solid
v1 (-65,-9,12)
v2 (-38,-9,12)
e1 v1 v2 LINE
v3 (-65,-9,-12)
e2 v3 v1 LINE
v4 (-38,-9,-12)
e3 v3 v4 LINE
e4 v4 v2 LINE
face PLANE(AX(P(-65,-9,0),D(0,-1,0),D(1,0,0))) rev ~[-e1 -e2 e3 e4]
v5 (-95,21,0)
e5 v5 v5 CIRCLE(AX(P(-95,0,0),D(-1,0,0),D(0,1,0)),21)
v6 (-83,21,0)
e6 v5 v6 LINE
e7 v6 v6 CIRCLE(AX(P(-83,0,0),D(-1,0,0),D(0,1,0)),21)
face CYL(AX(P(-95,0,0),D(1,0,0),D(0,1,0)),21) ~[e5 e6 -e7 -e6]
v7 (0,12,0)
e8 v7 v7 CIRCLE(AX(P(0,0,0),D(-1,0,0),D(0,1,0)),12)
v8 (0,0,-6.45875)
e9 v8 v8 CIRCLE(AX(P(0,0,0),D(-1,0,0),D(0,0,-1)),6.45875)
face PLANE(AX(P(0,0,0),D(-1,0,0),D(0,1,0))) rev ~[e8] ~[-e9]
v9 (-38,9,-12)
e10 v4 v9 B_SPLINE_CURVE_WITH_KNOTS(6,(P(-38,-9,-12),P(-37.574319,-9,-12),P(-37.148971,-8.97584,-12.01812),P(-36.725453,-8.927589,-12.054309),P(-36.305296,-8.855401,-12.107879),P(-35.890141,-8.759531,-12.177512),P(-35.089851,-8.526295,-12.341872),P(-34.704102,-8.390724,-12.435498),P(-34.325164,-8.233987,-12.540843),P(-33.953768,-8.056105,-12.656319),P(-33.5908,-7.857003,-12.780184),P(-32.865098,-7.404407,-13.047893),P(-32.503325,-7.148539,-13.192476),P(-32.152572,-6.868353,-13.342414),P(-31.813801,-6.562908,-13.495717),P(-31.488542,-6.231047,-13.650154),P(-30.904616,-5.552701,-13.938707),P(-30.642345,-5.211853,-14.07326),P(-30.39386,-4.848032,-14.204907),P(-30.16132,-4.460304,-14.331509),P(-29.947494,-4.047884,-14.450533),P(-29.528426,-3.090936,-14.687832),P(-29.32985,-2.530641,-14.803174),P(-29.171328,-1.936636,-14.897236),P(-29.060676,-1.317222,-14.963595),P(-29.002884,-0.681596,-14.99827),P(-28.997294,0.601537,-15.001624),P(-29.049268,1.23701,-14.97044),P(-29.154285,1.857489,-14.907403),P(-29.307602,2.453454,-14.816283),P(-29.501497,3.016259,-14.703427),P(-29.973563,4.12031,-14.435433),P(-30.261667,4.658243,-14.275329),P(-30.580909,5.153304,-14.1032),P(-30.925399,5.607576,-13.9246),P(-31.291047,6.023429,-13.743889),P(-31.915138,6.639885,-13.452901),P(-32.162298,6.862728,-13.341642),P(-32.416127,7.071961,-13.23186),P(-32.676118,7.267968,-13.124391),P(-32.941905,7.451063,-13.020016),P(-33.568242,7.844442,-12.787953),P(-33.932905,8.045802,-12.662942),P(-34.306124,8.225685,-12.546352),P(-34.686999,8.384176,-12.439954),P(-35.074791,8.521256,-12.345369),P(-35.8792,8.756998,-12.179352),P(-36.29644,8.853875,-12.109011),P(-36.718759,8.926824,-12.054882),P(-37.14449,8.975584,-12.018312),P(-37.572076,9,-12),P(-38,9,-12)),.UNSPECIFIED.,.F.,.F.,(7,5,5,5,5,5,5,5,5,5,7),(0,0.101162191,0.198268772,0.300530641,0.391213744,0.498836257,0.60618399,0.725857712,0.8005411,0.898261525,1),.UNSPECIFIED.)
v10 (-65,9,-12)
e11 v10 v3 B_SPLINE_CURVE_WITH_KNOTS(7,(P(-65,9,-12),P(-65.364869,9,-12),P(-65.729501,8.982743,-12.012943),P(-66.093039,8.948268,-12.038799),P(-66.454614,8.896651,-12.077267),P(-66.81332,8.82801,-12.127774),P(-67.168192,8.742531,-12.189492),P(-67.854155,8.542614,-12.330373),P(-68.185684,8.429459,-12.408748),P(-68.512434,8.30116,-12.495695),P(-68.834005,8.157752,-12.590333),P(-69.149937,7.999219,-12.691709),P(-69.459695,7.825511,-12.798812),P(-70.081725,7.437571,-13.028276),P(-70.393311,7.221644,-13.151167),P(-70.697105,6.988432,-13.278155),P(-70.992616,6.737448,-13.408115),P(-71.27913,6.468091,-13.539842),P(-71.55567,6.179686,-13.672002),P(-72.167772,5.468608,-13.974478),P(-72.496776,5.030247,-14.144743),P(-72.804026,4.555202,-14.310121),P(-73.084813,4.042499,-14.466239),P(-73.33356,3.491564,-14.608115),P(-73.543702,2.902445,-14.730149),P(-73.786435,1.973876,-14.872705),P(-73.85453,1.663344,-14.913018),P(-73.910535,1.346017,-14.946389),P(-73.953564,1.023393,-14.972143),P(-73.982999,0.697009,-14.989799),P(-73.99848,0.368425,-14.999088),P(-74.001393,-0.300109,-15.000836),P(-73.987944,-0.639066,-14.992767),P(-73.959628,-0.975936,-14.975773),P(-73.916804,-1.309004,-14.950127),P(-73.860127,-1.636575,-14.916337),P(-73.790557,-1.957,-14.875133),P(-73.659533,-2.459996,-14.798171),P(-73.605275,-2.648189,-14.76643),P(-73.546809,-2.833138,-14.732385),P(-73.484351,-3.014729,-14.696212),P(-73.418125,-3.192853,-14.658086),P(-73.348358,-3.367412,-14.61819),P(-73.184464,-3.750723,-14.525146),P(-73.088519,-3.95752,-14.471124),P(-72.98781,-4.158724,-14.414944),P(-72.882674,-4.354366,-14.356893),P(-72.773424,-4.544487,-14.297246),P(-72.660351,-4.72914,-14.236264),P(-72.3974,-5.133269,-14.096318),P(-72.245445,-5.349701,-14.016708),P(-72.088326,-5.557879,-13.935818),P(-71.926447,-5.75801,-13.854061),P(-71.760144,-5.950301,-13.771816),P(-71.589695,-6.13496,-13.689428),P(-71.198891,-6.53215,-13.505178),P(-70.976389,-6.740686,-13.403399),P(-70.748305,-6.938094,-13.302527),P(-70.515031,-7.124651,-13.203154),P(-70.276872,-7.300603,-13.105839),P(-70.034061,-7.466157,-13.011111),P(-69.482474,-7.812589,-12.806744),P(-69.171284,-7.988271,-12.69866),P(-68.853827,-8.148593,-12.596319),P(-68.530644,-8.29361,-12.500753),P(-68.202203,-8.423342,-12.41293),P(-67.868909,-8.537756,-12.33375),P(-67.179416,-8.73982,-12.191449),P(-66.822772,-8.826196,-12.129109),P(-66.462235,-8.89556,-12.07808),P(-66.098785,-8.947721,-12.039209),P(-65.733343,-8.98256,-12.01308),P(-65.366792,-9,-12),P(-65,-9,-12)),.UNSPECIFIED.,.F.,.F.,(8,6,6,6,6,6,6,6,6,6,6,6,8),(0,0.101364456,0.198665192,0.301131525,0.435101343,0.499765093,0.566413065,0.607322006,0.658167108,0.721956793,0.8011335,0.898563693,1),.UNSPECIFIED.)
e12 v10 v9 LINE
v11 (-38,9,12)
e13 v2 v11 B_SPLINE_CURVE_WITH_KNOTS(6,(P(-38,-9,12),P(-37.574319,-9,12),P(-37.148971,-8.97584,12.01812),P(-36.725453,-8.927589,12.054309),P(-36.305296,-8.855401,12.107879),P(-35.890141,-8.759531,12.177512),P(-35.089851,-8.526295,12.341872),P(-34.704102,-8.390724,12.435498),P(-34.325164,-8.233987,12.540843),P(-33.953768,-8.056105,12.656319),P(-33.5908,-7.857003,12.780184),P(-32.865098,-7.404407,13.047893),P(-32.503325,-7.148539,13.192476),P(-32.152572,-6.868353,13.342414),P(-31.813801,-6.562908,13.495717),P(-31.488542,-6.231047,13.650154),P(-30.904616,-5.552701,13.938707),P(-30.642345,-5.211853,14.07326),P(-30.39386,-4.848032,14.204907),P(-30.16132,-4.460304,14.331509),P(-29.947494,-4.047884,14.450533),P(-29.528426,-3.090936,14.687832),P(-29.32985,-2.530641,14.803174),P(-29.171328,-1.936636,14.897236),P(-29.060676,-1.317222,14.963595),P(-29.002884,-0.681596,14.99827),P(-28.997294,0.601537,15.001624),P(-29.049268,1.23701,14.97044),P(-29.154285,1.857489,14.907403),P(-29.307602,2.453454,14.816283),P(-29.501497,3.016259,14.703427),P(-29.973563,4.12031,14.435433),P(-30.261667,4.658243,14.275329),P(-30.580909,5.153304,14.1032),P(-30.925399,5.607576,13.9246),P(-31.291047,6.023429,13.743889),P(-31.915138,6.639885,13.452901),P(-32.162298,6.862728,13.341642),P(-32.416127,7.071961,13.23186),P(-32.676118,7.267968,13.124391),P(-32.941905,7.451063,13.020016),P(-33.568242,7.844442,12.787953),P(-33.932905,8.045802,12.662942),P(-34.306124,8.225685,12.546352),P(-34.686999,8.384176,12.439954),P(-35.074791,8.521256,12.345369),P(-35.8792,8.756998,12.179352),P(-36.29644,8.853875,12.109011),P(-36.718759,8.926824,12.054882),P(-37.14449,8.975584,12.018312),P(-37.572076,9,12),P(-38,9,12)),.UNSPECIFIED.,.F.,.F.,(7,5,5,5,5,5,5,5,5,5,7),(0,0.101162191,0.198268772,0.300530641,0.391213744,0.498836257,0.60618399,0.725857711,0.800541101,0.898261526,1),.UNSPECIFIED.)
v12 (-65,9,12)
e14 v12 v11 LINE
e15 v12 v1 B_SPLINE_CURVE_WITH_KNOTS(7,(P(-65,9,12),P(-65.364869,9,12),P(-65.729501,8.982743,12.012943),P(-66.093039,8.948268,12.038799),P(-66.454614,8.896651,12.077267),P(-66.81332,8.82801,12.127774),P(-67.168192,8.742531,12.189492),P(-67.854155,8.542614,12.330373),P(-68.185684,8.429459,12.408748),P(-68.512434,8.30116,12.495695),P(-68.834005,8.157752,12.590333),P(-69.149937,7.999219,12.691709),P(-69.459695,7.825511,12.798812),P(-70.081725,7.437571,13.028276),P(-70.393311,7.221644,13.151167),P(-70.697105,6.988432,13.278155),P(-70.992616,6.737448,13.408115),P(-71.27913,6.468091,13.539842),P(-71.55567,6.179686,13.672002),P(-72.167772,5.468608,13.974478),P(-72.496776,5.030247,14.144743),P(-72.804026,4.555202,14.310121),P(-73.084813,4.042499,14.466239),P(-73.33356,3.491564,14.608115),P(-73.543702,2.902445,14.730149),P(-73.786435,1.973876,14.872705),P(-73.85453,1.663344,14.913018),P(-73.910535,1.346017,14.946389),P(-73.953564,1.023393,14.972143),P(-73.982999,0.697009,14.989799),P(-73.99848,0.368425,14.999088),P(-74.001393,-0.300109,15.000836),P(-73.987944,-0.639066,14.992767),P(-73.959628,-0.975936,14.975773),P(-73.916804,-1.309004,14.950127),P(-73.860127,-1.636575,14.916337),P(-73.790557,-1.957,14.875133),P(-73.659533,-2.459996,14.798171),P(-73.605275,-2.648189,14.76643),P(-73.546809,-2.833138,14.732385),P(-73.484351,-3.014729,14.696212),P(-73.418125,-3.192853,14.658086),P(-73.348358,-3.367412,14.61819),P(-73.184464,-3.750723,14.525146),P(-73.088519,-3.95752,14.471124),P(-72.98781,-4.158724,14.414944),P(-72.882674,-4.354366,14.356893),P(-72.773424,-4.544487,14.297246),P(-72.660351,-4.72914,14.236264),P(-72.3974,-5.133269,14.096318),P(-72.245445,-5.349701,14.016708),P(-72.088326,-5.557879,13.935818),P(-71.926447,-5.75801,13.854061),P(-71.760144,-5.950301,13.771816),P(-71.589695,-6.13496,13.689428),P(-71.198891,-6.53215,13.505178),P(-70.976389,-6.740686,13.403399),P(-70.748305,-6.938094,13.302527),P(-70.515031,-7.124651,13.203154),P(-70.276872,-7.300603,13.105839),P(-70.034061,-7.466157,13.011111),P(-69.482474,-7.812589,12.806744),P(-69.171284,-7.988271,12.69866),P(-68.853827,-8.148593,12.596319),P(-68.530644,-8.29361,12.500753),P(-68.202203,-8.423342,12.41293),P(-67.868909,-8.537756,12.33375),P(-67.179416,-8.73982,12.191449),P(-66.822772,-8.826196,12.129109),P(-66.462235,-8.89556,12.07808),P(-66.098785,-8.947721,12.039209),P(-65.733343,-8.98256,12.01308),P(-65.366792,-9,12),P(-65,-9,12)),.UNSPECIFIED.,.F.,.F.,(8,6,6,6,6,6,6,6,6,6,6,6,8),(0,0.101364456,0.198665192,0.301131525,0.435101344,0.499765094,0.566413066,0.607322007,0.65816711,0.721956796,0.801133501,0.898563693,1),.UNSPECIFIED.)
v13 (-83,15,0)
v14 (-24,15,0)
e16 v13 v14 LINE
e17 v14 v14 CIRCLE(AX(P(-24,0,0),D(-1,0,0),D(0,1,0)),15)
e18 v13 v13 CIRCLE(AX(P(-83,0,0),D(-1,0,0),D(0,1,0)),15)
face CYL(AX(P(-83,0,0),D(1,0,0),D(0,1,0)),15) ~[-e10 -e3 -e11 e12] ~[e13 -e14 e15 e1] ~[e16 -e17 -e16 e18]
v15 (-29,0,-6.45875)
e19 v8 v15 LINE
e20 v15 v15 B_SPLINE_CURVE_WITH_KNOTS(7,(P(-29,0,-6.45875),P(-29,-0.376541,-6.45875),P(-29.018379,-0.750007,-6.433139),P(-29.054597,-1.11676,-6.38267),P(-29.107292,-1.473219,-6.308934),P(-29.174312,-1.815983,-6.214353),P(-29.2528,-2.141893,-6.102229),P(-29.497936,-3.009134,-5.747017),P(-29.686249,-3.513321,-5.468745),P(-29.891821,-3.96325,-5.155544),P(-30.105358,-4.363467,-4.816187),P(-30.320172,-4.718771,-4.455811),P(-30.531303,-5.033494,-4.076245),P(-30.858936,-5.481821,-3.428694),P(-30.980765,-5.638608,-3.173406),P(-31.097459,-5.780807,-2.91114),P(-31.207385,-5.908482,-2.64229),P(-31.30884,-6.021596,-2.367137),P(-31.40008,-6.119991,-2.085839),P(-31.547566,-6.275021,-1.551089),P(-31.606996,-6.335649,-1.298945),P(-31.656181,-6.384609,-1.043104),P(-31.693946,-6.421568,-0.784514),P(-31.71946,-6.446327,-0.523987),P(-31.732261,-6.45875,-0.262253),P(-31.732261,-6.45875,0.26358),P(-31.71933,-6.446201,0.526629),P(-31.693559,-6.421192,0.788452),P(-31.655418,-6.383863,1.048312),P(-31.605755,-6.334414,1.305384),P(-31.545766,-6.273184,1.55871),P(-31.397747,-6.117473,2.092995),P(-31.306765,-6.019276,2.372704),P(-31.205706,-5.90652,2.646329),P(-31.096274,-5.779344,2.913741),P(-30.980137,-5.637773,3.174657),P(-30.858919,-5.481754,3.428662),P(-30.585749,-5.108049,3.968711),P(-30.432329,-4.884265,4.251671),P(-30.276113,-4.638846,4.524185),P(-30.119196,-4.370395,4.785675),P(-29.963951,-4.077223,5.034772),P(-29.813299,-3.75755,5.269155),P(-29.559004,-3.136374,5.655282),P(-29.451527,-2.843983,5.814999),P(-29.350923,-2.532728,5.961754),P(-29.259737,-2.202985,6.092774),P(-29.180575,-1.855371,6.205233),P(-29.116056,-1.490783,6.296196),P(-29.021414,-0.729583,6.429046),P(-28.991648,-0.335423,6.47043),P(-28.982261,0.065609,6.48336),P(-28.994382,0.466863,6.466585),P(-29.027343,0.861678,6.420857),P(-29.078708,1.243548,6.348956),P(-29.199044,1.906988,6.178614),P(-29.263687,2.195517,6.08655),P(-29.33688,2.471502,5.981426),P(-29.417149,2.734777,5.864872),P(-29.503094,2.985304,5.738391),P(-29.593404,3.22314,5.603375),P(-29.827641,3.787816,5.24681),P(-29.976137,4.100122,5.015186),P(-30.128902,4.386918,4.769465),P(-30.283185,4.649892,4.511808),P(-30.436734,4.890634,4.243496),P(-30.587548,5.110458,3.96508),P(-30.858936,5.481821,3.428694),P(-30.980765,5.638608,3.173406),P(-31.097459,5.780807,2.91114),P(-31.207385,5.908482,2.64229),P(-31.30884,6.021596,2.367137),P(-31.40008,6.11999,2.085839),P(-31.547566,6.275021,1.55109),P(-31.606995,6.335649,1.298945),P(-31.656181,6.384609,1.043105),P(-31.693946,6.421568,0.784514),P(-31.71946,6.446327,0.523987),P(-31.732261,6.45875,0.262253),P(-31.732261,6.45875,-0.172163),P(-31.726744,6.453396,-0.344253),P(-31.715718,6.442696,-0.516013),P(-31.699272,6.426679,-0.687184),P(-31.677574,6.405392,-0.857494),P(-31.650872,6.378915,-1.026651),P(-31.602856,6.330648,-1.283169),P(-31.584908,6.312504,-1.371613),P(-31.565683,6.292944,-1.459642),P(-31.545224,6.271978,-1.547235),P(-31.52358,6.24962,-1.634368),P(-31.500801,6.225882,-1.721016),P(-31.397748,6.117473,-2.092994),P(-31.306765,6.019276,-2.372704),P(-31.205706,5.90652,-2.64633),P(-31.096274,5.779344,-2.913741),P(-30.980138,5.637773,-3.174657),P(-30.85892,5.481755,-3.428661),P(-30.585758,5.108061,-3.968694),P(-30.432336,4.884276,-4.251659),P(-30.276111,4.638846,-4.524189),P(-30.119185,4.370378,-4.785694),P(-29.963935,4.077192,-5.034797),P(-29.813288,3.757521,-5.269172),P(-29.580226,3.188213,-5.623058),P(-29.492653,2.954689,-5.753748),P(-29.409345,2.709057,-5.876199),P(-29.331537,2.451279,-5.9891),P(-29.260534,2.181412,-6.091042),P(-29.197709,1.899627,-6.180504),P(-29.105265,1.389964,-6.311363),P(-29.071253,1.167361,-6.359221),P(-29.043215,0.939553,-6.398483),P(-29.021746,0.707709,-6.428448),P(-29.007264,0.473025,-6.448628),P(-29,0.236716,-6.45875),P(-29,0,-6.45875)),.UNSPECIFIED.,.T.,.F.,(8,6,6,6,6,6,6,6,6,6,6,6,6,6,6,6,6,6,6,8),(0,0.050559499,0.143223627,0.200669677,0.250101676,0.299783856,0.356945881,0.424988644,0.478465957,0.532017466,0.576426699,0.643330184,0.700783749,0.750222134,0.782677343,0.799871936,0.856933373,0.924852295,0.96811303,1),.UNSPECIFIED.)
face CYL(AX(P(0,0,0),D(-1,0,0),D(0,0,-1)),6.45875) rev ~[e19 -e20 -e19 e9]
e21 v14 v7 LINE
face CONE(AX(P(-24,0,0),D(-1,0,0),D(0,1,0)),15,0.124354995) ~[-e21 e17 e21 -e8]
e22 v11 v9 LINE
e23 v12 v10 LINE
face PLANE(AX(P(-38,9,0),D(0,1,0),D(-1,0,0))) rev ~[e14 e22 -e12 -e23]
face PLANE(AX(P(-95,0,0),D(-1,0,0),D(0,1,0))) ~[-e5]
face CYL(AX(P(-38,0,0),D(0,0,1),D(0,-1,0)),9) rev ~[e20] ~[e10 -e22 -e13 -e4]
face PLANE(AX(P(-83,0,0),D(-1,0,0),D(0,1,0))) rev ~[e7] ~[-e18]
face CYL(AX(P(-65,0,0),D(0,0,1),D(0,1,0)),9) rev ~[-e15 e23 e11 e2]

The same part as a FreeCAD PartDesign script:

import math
import FreeCAD as App
import Part
import Sketcher

V = App.Vector
Q = App.Units.Quantity


def add_polygon(sketch, points):
    """Adds a closed chain of lines whose ends are joined by coincident constraints."""
    first, n = sketch.GeometryCount, len(points)
    for a, b in zip(points, points[1:] + points[:1]):
        sketch.addGeometry(Part.LineSegment(App.Vector(*a, 0), App.Vector(*b, 0)), False)
    for i in range(n):
        sketch.addConstraint(Sketcher.Constraint("Coincident", first + i, 2, first + (i + 1) % n, 1))

doc = App.newDocument("Part")
body = doc.addObject("PartDesign::Body", "Body")

# Sketch on XY plane
sketch1 = body.newObject("Sketcher::SketchObject", "Sketch")
sketch1.AttachmentSupport = (doc.getObject("XY_Plane"), [""])
sketch1.MapMode = "FlatFace"
add_polygon(sketch1, [(-95, 0), (0, 0), (0, 12), (-24, 15), (-83, 15), (-83, 21), (-95, 21)])  # lines 0-6
sketch1.addConstraint(Sketcher.Constraint("Horizontal", 0))
sketch1.addConstraint(Sketcher.Constraint("Vertical", 1))
sketch1.addConstraint(Sketcher.Constraint("Horizontal", 3))
sketch1.addConstraint(Sketcher.Constraint("Vertical", 4))
sketch1.addConstraint(Sketcher.Constraint("Horizontal", 5))
sketch1.addConstraint(Sketcher.Constraint("Vertical", 6))
sketch1.addConstraint(Sketcher.Constraint("Coincident", 0, 2, -1, 1))
sketch1.addConstraint(Sketcher.Constraint("Equal", 5, 1))
sketch1.addConstraint(Sketcher.Constraint("DistanceX", 3, 2, 3, 1, Q("59 mm")))
sketch1.addConstraint(Sketcher.Constraint("DistanceX", 5, 2, 5, 1, Q("12 mm")))
sketch1.addConstraint(Sketcher.Constraint("DistanceY", 6, 2, 6, 1, Q("21 mm")))
sketch1.addConstraint(Sketcher.Constraint("DistanceX", 2, 2, -1, 1, Q("24 mm")))
sketch1.addConstraint(Sketcher.Constraint("DistanceY", -1, 1, 2, 2, Q("15 mm")))
revolution = body.newObject("PartDesign::Revolution", "Revolution")
revolution.Profile = sketch1
revolution.ReferenceAxis = (sketch1, ["H_Axis"])
revolution.Angle = 360

# Sketch on XY plane
sketch2 = body.newObject("Sketcher::SketchObject", "Sketch001")
sketch2.AttachmentSupport = (doc.getObject("XY_Plane"), [""])
sketch2.MapMode = "FlatFace"
sketch2.addGeometry(Part.ArcOfCircle(Part.Circle(V(-65, 0, 0), V(0, 0, 1), 9), math.radians(90), math.radians(270)), False)
sketch2.addGeometry(Part.LineSegment(V(-65, -9, 0), V(-38, -9, 0)), False)
sketch2.addGeometry(Part.ArcOfCircle(Part.Circle(V(-38, 0, 0), V(0, 0, 1), 9), math.radians(-90), math.radians(90)), False)
sketch2.addGeometry(Part.LineSegment(V(-38, 9, 0), V(-65, 9, 0)), False)
sketch2.addConstraint(Sketcher.Constraint("Tangent", 0, 2, 1, 1))
sketch2.addConstraint(Sketcher.Constraint("Tangent", 1, 2, 2, 1))
sketch2.addConstraint(Sketcher.Constraint("Tangent", 2, 2, 3, 1))
sketch2.addConstraint(Sketcher.Constraint("Tangent", 3, 2, 0, 1))
sketch2.addConstraint(Sketcher.Constraint("Horizontal", 1))
sketch2.addConstraint(Sketcher.Constraint("Horizontal", 3))
sketch2.addConstraint(Sketcher.Constraint("PointOnObject", 0, 3, -1))
sketch2.addConstraint(Sketcher.Constraint("Radius", 0, Q("9 mm")))
sketch2.addConstraint(Sketcher.Constraint("DistanceX", 1, 1, 1, 2, Q("27 mm")))
sketch2.addConstraint(Sketcher.Constraint("DistanceX", 0, 3, -1, 1, Q("65 mm")))
pocket1 = body.newObject("PartDesign::Pocket", "Pocket")
pocket1.Profile = sketch2
pocket1.Type = "ThroughAll"
pocket1.Midplane = True

# Sketch on YZ plane
sketch3 = body.newObject("Sketcher::SketchObject", "Sketch002")
sketch3.AttachmentSupport = (doc.getObject("YZ_Plane"), [""])
sketch3.MapMode = "FlatFace"
sketch3.addGeometry(Part.Circle(V(0, 0, 0), V(0, 0, 1), 6.45875), False)
sketch3.addConstraint(Sketcher.Constraint("Coincident", 0, 3, -1, 1))
sketch3.addConstraint(Sketcher.Constraint("Diameter", 0, Q("12.9175 mm")))
doc.recompute()
hole = body.newObject("PartDesign::Hole", "Hole")
hole.Profile = sketch3
hole.ThreadType = "None"
hole.Diameter = 12.9175
hole.DepthType = "Dimension"
hole.Depth = 40
hole.DrillPoint = "Angled"
hole.DrillPointAngle = 118

doc.recompute()
